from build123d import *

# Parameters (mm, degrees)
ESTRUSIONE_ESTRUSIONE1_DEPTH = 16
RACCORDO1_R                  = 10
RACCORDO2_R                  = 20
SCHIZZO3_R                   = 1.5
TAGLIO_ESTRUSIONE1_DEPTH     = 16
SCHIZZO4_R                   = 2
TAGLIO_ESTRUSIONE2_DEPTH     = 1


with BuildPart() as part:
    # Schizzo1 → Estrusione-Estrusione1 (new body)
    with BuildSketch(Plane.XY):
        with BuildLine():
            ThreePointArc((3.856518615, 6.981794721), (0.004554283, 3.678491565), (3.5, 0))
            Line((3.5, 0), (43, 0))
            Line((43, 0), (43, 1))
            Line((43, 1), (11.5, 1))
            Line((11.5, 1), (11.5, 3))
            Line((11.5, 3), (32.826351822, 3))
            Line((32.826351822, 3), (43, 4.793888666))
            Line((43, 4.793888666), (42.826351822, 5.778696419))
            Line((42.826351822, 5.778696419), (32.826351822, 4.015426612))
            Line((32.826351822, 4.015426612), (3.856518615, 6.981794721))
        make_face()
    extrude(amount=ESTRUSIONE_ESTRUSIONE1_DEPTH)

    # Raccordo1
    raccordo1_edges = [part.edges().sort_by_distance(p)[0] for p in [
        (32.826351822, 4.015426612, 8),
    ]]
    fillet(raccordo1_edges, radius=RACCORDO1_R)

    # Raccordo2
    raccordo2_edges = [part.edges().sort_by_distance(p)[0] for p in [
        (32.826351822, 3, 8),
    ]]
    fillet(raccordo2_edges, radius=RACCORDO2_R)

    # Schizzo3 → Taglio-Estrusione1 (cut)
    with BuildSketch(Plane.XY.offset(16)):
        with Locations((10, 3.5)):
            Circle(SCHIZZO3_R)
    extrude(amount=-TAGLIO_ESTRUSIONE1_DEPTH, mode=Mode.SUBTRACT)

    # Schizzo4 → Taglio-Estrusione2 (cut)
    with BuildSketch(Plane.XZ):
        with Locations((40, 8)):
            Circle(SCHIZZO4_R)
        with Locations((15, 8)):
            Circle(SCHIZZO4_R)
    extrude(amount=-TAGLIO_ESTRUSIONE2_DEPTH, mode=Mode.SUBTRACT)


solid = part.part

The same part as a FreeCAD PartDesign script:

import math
import FreeCAD as App
import Part
import Sketcher
Q = App.Units.Quantity


def edges_at(feature, points):
    """Names of the edges that pass closest to the given points."""
    edges = feature.Shape.Edges
    near = lambda p: min(range(len(edges)), key=lambda i: edges[i].distToShape(Part.Vertex(*p))[0])
    return sorted({f"Edge{near(p) + 1}" for p in points})

doc = App.newDocument("Part")
body = doc.addObject("PartDesign::Body", "Body")

# Sketch on XY plane
sketch1 = doc.addObject("Sketcher::SketchObject", "Sketch")
body.addObject(sketch1)
sketch1.AttachmentSupport = (doc.XY_Plane, [""])
sketch1.MapMode = "FlatFace"
sketch1.addGeometry([
    Part.ArcOfCircle(Part.Circle(App.Vector(3.5, 3.5, 0), App.Vector(0, 0, 1), 3.5), math.radians(84), math.radians(270)),  # 0
    Part.LineSegment(App.Vector(3.5, 0, 0), App.Vector(43, 0, 0)),  # 1
    Part.LineSegment(App.Vector(43, 0, 0), App.Vector(43, 1, 0)),  # 2
    Part.LineSegment(App.Vector(43, 1, 0), App.Vector(11.5, 1, 0)),  # 3
    Part.LineSegment(App.Vector(11.5, 1, 0), App.Vector(11.5, 3, 0)),  # 4
    Part.LineSegment(App.Vector(11.5, 3, 0), App.Vector(32.8, 3, 0)),  # 5
    Part.LineSegment(App.Vector(32.8, 3, 0), App.Vector(43, 4.8, 0)),  # 6
    Part.LineSegment(App.Vector(43, 4.8, 0), App.Vector(42.8, 5.8, 0)),  # 7
    Part.LineSegment(App.Vector(42.8, 5.8, 0), App.Vector(32.8, 4, 0)),  # 8
    Part.LineSegment(App.Vector(32.8, 4, 0), App.Vector(3.9, 7, 0)),  # 9
], False)
sketch1.addConstraint([
    Sketcher.Constraint("Tangent", 0, 2, 1, 1),
    Sketcher.Constraint("Coincident", 1, 2, 2, 1),
    Sketcher.Constraint("Coincident", 2, 2, 3, 1),
    Sketcher.Constraint("Coincident", 3, 2, 4, 1),
    Sketcher.Constraint("Coincident", 4, 2, 5, 1),
    Sketcher.Constraint("Coincident", 5, 2, 6, 1),
    Sketcher.Constraint("Coincident", 6, 2, 7, 1),
    Sketcher.Constraint("Coincident", 7, 2, 8, 1),
    Sketcher.Constraint("Coincident", 8, 2, 9, 1),
    Sketcher.Constraint("Tangent", 9, 2, 0, 1),
    Sketcher.Constraint("Horizontal", 1),
    Sketcher.Constraint("Vertical", 2),
    Sketcher.Constraint("Horizontal", 3),
    Sketcher.Constraint("Vertical", 4),
    Sketcher.Constraint("Horizontal", 5),
    Sketcher.Constraint("PointOnObject", 0, 2, -1),
    Sketcher.Constraint("Perpendicular", 6, 7),
    Sketcher.Constraint("Perpendicular", 7, 8),
    Sketcher.Constraint("Vertical", 2, 2, 6, 2),
    Sketcher.Constraint("Vertical", 5, 2, 8, 2),
    Sketcher.Constraint("Radius", 0, 3.5),
    Sketcher.Constraint("DistanceY", 2, 1, 2, 2, 1.0),
    Sketcher.Constraint("DistanceY", 4, 1, 4, 2, 2.0),
    Sketcher.Constraint("Angle", 6, Q("10 deg")),
    Sketcher.Constraint("Distance", 7, 1.0),
    Sketcher.Constraint("DistanceX", 1, 1, 1, 2, 39.5),
    Sketcher.Constraint("DistanceX", 3, 2, 3, 1, 31.5),
    Sketcher.Constraint("DistanceX", -1, 1, 1, 2, 43.0),
    Sketcher.Constraint("DistanceX", 5, 2, 7, 2, 10.0),
])
pad1 = doc.addObject("PartDesign::Pad", "Pad")
body.addObject(pad1)
pad1.Profile = sketch1
pad1.Length = 16
doc.recompute()

fillet = doc.addObject("PartDesign::Fillet", "Fillet")
body.addObject(fillet)
fillet.Base = (pad1, edges_at(pad1, [(32.826, 4.015, 8)]))
fillet.Radius = 10
doc.recompute()

fillet2 = doc.addObject("PartDesign::Fillet", "Fillet001")
body.addObject(fillet2)
fillet2.Base = (fillet, edges_at(fillet, [(32.826, 3, 8)]))
fillet2.Radius = 20

# Sketch on XY plane
sketch2 = doc.addObject("Sketcher::SketchObject", "Sketch001")
body.addObject(sketch2)
sketch2.AttachmentSupport = (doc.XY_Plane, [""])
sketch2.MapMode = "FlatFace"
sketch2.AttachmentOffset = App.Placement(App.Vector(0, 0, 16), App.Rotation())
sketch2.addGeometry(Part.Circle(App.Vector(10, 3.5, 0), App.Vector(0, 0, 1), 1.5), False)
sketch2.addConstraint([
    Sketcher.Constraint("Diameter", 0, 3.0),
    Sketcher.Constraint("DistanceX", -1, 1, 0, 3, 10.0),
    Sketcher.Constraint("DistanceY", -1, 1, 0, 3, 3.5),
])
pocket1 = doc.addObject("PartDesign::Pocket", "Pocket")
body.addObject(pocket1)
pocket1.Profile = sketch2
pocket1.Length = 16

# Sketch on XZ plane
sketch3 = doc.addObject("Sketcher::SketchObject", "Sketch002")
body.addObject(sketch3)
sketch3.AttachmentSupport = (doc.XZ_Plane, [""])
sketch3.MapMode = "FlatFace"
sketch3.addGeometry([
    Part.Circle(App.Vector(40, 8, 0), App.Vector(0, 0, 1), 2),
    Part.Circle(App.Vector(15, 8, 0), App.Vector(0, 0, 1), 2),
], False)
sketch3.addConstraint([
    Sketcher.Constraint("Equal", 0, 1),
    Sketcher.Constraint("Horizontal", 0, 3, 1, 3),
    Sketcher.Constraint("Diameter", 0, 4.0),
    Sketcher.Constraint("DistanceX", -1, 1, 0, 3, 40.0),
    Sketcher.Constraint("DistanceY", -1, 1, 0, 3, 8.0),
    Sketcher.Constraint("DistanceX", -1, 1, 1, 3, 15.0),
])
pocket2 = doc.addObject("PartDesign::Pocket", "Pocket001")
body.addObject(pocket2)
pocket2.Profile = sketch3
pocket2.Length = 1

doc.recompute()
